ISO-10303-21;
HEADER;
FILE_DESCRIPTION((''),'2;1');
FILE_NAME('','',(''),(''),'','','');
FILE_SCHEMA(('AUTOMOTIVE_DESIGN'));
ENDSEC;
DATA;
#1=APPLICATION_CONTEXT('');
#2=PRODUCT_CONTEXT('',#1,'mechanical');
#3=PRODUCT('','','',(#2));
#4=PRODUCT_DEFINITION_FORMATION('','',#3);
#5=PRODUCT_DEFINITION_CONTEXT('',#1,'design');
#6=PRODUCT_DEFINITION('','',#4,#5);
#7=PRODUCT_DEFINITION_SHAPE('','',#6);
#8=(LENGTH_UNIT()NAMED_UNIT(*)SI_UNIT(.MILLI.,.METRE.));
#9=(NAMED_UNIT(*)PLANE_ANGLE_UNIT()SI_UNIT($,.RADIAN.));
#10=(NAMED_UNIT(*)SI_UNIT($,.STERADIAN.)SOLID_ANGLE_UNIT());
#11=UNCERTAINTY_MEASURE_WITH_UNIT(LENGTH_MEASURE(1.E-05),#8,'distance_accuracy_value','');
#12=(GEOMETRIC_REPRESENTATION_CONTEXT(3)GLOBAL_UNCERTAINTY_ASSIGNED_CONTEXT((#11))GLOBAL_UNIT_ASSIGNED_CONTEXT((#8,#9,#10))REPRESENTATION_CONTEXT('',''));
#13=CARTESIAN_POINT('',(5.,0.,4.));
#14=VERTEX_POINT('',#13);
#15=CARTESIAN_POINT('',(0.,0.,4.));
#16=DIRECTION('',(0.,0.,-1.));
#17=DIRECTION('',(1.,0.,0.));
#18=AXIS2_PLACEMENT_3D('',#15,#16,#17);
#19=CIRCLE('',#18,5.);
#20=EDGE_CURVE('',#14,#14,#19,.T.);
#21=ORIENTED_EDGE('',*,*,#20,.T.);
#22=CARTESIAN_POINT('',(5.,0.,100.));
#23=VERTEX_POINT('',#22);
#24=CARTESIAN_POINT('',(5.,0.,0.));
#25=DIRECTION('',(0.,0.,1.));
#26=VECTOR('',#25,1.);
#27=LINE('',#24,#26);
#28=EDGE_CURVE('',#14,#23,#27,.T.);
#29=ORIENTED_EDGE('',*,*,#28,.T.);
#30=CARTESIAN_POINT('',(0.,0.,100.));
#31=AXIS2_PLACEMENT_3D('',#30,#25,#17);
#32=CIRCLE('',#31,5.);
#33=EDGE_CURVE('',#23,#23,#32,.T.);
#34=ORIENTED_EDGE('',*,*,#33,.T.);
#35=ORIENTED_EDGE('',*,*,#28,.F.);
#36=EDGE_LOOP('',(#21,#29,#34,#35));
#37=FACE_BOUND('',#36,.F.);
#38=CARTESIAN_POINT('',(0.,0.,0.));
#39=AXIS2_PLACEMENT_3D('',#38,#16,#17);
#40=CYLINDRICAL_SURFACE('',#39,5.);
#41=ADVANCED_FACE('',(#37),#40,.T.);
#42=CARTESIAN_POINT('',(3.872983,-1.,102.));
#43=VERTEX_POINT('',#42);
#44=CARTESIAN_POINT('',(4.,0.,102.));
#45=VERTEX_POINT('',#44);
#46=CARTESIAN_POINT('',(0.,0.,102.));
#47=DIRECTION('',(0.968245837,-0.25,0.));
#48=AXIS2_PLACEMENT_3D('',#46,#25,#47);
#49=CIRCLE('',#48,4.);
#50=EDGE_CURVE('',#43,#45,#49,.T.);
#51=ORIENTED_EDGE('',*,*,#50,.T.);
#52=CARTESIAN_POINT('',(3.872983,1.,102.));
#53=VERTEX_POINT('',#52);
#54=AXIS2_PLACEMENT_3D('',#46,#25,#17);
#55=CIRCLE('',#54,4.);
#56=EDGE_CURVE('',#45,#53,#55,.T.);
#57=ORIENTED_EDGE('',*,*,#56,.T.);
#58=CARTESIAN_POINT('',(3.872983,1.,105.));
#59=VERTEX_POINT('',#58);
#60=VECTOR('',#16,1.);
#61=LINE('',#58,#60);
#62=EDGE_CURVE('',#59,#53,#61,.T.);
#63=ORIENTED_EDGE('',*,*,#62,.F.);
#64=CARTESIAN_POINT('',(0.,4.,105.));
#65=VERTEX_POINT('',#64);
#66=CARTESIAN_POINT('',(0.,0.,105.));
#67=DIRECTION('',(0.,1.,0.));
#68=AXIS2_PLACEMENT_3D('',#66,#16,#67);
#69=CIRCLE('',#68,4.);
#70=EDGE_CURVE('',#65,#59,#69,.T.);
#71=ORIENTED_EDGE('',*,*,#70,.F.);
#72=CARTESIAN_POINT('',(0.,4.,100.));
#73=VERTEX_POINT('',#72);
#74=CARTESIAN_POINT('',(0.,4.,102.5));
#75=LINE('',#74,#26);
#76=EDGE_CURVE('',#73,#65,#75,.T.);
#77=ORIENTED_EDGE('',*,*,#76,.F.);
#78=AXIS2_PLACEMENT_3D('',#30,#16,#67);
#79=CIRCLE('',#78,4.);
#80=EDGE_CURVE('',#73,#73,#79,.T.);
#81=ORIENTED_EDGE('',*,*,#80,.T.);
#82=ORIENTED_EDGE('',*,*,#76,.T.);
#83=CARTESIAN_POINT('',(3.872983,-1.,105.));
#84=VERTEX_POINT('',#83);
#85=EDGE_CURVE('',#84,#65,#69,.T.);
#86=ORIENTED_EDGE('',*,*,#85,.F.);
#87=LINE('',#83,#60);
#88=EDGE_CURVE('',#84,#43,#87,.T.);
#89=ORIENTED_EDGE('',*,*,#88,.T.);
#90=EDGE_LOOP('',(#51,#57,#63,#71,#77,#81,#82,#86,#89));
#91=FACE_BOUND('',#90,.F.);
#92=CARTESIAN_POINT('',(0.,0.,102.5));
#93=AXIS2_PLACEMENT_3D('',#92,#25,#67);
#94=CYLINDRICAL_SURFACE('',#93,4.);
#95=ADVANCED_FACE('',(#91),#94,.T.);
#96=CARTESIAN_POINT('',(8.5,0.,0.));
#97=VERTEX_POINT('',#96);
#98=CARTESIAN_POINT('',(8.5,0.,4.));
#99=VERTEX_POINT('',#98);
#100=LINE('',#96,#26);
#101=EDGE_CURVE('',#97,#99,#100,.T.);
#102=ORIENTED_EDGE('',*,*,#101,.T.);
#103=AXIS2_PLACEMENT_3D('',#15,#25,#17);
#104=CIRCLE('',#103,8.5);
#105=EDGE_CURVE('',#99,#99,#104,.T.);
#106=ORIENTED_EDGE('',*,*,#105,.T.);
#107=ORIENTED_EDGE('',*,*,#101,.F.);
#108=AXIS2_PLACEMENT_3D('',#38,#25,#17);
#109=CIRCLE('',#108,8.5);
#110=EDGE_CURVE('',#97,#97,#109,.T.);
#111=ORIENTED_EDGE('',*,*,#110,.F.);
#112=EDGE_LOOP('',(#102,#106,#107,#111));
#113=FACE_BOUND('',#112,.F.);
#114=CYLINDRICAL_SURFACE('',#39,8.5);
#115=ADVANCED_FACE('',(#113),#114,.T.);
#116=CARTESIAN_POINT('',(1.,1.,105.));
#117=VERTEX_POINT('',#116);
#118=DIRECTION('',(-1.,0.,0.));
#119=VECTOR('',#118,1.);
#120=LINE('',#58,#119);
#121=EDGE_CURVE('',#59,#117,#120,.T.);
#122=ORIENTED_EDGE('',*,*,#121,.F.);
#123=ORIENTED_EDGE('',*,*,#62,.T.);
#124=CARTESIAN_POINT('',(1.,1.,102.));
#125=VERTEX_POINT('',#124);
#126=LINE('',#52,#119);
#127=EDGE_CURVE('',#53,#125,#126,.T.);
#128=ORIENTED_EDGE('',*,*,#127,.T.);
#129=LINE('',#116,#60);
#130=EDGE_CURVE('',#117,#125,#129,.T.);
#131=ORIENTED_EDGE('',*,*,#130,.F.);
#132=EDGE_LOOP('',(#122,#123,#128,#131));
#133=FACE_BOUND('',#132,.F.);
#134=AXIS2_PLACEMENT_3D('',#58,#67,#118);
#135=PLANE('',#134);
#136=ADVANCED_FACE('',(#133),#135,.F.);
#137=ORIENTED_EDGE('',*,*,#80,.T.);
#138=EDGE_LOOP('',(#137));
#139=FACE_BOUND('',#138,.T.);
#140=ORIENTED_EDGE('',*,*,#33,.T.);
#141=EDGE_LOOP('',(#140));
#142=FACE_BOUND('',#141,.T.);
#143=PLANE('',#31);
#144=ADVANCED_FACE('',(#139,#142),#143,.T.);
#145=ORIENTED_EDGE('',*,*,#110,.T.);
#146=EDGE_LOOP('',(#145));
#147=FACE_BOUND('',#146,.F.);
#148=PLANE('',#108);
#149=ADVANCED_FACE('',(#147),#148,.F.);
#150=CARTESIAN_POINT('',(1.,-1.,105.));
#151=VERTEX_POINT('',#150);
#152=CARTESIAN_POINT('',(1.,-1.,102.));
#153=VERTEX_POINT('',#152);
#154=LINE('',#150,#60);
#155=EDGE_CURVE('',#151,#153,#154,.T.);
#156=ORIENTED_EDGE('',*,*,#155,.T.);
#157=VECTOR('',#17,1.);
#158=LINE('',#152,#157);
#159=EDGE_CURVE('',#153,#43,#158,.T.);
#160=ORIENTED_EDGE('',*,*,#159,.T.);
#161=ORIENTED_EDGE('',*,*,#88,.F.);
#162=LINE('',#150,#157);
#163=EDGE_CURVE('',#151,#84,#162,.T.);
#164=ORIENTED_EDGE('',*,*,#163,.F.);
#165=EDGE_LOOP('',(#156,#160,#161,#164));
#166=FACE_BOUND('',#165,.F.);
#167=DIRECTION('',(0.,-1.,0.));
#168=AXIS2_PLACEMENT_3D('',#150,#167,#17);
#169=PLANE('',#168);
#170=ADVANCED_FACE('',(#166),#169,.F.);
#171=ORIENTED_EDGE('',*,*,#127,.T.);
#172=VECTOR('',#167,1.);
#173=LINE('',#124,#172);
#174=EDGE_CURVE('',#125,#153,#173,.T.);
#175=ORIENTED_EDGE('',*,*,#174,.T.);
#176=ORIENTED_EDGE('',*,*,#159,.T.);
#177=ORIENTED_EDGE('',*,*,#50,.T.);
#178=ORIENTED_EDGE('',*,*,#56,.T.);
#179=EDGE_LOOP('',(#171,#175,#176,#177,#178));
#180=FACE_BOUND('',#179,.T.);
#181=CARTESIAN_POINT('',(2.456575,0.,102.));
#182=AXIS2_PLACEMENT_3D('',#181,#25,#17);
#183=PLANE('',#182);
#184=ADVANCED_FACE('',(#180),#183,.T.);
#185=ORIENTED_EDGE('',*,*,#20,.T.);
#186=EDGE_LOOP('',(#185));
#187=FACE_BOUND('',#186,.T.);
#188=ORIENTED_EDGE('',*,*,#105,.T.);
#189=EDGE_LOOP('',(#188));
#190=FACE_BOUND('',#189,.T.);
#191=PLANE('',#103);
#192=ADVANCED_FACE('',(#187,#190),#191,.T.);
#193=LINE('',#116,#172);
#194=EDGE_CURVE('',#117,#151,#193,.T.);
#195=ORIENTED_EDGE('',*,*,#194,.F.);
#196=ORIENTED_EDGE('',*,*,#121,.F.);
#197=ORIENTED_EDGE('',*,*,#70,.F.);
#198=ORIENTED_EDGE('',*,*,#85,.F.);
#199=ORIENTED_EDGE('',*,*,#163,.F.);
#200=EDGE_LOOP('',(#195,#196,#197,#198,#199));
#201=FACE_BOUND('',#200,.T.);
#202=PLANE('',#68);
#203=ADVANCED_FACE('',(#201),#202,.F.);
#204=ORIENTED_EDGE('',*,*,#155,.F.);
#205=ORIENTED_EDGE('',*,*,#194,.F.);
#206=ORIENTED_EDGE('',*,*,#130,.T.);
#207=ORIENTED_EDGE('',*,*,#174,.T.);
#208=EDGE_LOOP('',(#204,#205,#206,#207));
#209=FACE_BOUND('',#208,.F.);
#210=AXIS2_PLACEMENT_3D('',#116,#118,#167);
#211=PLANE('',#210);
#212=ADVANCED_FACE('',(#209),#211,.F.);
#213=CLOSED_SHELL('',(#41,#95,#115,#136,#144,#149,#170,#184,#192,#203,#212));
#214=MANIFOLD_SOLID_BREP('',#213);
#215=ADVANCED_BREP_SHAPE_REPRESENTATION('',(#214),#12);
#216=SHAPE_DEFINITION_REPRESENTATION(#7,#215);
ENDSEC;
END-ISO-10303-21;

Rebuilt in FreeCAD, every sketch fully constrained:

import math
import FreeCAD as App
import Part
import Sketcher

V = App.Vector


def add_polygon(sketch, points):
    """Adds a closed chain of lines whose ends are joined by coincident constraints."""
    first, n = sketch.GeometryCount, len(points)
    for a, b in zip(points, points[1:] + points[:1]):
        sketch.addGeometry(Part.LineSegment(App.Vector(*a, 0), App.Vector(*b, 0)), False)
    for i in range(n):
        sketch.addConstraint(Sketcher.Constraint("Coincident", first + i, 2, first + (i + 1) % n, 1))

doc = App.newDocument("Part")
body = doc.addObject("PartDesign::Body", "Body")

sketch1 = body.newObject("Sketcher::SketchObject", "Sketch")
sketch1.AttachmentSupport = (doc.getObject("XY_Plane"), [""])
sketch1.MapMode = "FlatFace"
sketch1.addGeometry(Part.Circle(V(0, 0, 0), V(0, 0, 1), 8), False)
sketch1.addConstraint(Sketcher.Constraint("Coincident", 0, 3, -1, 1))
sketch1.addConstraint(Sketcher.Constraint("Diameter", 0, 17.0))
pad1 = body.newObject("PartDesign::Pad", "Pad")
pad1.Profile = sketch1
pad1.Length = 4

sketch2 = body.newObject("Sketcher::SketchObject", "Sketch001")
sketch2.AttachmentSupport = (doc.getObject("XY_Plane"), [""])
sketch2.MapMode = "FlatFace"
sketch2.addGeometry(Part.Circle(V(0, 0, 0), V(0, 0, 1), 5), False)
sketch2.addConstraint(Sketcher.Constraint("Coincident", 0, 3, -1, 1))
sketch2.addConstraint(Sketcher.Constraint("Diameter", 0, 10.0))
pad2 = body.newObject("PartDesign::Pad", "Pad001")
pad2.Profile = sketch2
pad2.Length = 100

sketch3 = body.newObject("Sketcher::SketchObject", "Sketch002")
sketch3.AttachmentSupport = (doc.getObject("YZ_Plane"), [""])
sketch3.MapMode = "FlatFace"
add_polygon(sketch3, [(0, 105), (0, 100), (4, 100), (4, 105)])
sketch3.addConstraint(Sketcher.Constraint("Vertical", 0))
sketch3.addConstraint(Sketcher.Constraint("Horizontal", 1))
sketch3.addConstraint(Sketcher.Constraint("Vertical", 2))
sketch3.addConstraint(Sketcher.Constraint("Horizontal", 3))
sketch3.addConstraint(Sketcher.Constraint("PointOnObject", 0, 2, -2))
sketch3.addConstraint(Sketcher.Constraint("DistanceX", 1, 1, 1, 2, 4.0))
sketch3.addConstraint(Sketcher.Constraint("DistanceY", 0, 2, 0, 1, 5.0))
sketch3.addConstraint(Sketcher.Constraint("DistanceY", -1, 1, 0, 2, 100.0))
revolution = body.newObject("PartDesign::Revolution", "Revolution")
revolution.Profile = sketch3
revolution.ReferenceAxis = (sketch3, ["V_Axis"])
revolution.Angle = 360

sketch4 = body.newObject("Sketcher::SketchObject", "Sketch003")
sketch4.AttachmentSupport = (doc.getObject("XY_Plane"), [""])
sketch4.MapMode = "FlatFace"
sketch4.AttachmentOffset = App.Placement(V(0, 0, 105), App.Rotation())
sketch4.addGeometry(Part.LineSegment(V(3.9, 1, 0), V(1, 1, 0)), False)
sketch4.addGeometry(Part.LineSegment(V(1, 1, 0), V(1, -1, 0)), False)
sketch4.addGeometry(Part.LineSegment(V(1, -1, 0), V(3.9, -1, 0)), False)
sketch4.addGeometry(Part.ArcOfCircle(Part.Circle(V(0, 0, 0), V(0, 0, 1), 4), math.radians(-14.48), math.radians(0)), False)
sketch4.addGeometry(Part.ArcOfCircle(Part.Circle(V(0, 0, 0), V(0, 0, 1), 4), math.radians(0), math.radians(14.48)), False)
sketch4.addConstraint(Sketcher.Constraint("Coincident", 0, 2, 1, 1))
sketch4.addConstraint(Sketcher.Constraint("Coincident", 1, 2, 2, 1))
sketch4.addConstraint(Sketcher.Constraint("Coincident", 2, 2, 3, 1))
sketch4.addConstraint(Sketcher.Constraint("Tangent", 3, 2, 4, 1))
sketch4.addConstraint(Sketcher.Constraint("Coincident", 4, 2, 0, 1))
sketch4.addConstraint(Sketcher.Constraint("Horizontal", 0))
sketch4.addConstraint(Sketcher.Constraint("Vertical", 1))
sketch4.addConstraint(Sketcher.Constraint("Horizontal", 2))
sketch4.addConstraint(Sketcher.Constraint("Coincident", 3, 3, -1, 1))
sketch4.addConstraint(Sketcher.Constraint("Equal", 3, 4))
sketch4.addConstraint(Sketcher.Constraint("PointOnObject", 3, 2, -1))
sketch4.addConstraint(Sketcher.Constraint("Vertical", 2, 2, 4, 2))
sketch4.addConstraint(Sketcher.Constraint("Radius", 3, 4.0))
sketch4.addConstraint(Sketcher.Constraint("DistanceY", 1, 2, 1, 1, 2.0))
sketch4.addConstraint(Sketcher.Constraint("DistanceX", -1, 1, 0, 2, 1.0))
pocket1 = body.newObject("PartDesign::Pocket", "Pocket")
pocket1.Profile = sketch4
pocket1.Length = 3

doc.recompute()
